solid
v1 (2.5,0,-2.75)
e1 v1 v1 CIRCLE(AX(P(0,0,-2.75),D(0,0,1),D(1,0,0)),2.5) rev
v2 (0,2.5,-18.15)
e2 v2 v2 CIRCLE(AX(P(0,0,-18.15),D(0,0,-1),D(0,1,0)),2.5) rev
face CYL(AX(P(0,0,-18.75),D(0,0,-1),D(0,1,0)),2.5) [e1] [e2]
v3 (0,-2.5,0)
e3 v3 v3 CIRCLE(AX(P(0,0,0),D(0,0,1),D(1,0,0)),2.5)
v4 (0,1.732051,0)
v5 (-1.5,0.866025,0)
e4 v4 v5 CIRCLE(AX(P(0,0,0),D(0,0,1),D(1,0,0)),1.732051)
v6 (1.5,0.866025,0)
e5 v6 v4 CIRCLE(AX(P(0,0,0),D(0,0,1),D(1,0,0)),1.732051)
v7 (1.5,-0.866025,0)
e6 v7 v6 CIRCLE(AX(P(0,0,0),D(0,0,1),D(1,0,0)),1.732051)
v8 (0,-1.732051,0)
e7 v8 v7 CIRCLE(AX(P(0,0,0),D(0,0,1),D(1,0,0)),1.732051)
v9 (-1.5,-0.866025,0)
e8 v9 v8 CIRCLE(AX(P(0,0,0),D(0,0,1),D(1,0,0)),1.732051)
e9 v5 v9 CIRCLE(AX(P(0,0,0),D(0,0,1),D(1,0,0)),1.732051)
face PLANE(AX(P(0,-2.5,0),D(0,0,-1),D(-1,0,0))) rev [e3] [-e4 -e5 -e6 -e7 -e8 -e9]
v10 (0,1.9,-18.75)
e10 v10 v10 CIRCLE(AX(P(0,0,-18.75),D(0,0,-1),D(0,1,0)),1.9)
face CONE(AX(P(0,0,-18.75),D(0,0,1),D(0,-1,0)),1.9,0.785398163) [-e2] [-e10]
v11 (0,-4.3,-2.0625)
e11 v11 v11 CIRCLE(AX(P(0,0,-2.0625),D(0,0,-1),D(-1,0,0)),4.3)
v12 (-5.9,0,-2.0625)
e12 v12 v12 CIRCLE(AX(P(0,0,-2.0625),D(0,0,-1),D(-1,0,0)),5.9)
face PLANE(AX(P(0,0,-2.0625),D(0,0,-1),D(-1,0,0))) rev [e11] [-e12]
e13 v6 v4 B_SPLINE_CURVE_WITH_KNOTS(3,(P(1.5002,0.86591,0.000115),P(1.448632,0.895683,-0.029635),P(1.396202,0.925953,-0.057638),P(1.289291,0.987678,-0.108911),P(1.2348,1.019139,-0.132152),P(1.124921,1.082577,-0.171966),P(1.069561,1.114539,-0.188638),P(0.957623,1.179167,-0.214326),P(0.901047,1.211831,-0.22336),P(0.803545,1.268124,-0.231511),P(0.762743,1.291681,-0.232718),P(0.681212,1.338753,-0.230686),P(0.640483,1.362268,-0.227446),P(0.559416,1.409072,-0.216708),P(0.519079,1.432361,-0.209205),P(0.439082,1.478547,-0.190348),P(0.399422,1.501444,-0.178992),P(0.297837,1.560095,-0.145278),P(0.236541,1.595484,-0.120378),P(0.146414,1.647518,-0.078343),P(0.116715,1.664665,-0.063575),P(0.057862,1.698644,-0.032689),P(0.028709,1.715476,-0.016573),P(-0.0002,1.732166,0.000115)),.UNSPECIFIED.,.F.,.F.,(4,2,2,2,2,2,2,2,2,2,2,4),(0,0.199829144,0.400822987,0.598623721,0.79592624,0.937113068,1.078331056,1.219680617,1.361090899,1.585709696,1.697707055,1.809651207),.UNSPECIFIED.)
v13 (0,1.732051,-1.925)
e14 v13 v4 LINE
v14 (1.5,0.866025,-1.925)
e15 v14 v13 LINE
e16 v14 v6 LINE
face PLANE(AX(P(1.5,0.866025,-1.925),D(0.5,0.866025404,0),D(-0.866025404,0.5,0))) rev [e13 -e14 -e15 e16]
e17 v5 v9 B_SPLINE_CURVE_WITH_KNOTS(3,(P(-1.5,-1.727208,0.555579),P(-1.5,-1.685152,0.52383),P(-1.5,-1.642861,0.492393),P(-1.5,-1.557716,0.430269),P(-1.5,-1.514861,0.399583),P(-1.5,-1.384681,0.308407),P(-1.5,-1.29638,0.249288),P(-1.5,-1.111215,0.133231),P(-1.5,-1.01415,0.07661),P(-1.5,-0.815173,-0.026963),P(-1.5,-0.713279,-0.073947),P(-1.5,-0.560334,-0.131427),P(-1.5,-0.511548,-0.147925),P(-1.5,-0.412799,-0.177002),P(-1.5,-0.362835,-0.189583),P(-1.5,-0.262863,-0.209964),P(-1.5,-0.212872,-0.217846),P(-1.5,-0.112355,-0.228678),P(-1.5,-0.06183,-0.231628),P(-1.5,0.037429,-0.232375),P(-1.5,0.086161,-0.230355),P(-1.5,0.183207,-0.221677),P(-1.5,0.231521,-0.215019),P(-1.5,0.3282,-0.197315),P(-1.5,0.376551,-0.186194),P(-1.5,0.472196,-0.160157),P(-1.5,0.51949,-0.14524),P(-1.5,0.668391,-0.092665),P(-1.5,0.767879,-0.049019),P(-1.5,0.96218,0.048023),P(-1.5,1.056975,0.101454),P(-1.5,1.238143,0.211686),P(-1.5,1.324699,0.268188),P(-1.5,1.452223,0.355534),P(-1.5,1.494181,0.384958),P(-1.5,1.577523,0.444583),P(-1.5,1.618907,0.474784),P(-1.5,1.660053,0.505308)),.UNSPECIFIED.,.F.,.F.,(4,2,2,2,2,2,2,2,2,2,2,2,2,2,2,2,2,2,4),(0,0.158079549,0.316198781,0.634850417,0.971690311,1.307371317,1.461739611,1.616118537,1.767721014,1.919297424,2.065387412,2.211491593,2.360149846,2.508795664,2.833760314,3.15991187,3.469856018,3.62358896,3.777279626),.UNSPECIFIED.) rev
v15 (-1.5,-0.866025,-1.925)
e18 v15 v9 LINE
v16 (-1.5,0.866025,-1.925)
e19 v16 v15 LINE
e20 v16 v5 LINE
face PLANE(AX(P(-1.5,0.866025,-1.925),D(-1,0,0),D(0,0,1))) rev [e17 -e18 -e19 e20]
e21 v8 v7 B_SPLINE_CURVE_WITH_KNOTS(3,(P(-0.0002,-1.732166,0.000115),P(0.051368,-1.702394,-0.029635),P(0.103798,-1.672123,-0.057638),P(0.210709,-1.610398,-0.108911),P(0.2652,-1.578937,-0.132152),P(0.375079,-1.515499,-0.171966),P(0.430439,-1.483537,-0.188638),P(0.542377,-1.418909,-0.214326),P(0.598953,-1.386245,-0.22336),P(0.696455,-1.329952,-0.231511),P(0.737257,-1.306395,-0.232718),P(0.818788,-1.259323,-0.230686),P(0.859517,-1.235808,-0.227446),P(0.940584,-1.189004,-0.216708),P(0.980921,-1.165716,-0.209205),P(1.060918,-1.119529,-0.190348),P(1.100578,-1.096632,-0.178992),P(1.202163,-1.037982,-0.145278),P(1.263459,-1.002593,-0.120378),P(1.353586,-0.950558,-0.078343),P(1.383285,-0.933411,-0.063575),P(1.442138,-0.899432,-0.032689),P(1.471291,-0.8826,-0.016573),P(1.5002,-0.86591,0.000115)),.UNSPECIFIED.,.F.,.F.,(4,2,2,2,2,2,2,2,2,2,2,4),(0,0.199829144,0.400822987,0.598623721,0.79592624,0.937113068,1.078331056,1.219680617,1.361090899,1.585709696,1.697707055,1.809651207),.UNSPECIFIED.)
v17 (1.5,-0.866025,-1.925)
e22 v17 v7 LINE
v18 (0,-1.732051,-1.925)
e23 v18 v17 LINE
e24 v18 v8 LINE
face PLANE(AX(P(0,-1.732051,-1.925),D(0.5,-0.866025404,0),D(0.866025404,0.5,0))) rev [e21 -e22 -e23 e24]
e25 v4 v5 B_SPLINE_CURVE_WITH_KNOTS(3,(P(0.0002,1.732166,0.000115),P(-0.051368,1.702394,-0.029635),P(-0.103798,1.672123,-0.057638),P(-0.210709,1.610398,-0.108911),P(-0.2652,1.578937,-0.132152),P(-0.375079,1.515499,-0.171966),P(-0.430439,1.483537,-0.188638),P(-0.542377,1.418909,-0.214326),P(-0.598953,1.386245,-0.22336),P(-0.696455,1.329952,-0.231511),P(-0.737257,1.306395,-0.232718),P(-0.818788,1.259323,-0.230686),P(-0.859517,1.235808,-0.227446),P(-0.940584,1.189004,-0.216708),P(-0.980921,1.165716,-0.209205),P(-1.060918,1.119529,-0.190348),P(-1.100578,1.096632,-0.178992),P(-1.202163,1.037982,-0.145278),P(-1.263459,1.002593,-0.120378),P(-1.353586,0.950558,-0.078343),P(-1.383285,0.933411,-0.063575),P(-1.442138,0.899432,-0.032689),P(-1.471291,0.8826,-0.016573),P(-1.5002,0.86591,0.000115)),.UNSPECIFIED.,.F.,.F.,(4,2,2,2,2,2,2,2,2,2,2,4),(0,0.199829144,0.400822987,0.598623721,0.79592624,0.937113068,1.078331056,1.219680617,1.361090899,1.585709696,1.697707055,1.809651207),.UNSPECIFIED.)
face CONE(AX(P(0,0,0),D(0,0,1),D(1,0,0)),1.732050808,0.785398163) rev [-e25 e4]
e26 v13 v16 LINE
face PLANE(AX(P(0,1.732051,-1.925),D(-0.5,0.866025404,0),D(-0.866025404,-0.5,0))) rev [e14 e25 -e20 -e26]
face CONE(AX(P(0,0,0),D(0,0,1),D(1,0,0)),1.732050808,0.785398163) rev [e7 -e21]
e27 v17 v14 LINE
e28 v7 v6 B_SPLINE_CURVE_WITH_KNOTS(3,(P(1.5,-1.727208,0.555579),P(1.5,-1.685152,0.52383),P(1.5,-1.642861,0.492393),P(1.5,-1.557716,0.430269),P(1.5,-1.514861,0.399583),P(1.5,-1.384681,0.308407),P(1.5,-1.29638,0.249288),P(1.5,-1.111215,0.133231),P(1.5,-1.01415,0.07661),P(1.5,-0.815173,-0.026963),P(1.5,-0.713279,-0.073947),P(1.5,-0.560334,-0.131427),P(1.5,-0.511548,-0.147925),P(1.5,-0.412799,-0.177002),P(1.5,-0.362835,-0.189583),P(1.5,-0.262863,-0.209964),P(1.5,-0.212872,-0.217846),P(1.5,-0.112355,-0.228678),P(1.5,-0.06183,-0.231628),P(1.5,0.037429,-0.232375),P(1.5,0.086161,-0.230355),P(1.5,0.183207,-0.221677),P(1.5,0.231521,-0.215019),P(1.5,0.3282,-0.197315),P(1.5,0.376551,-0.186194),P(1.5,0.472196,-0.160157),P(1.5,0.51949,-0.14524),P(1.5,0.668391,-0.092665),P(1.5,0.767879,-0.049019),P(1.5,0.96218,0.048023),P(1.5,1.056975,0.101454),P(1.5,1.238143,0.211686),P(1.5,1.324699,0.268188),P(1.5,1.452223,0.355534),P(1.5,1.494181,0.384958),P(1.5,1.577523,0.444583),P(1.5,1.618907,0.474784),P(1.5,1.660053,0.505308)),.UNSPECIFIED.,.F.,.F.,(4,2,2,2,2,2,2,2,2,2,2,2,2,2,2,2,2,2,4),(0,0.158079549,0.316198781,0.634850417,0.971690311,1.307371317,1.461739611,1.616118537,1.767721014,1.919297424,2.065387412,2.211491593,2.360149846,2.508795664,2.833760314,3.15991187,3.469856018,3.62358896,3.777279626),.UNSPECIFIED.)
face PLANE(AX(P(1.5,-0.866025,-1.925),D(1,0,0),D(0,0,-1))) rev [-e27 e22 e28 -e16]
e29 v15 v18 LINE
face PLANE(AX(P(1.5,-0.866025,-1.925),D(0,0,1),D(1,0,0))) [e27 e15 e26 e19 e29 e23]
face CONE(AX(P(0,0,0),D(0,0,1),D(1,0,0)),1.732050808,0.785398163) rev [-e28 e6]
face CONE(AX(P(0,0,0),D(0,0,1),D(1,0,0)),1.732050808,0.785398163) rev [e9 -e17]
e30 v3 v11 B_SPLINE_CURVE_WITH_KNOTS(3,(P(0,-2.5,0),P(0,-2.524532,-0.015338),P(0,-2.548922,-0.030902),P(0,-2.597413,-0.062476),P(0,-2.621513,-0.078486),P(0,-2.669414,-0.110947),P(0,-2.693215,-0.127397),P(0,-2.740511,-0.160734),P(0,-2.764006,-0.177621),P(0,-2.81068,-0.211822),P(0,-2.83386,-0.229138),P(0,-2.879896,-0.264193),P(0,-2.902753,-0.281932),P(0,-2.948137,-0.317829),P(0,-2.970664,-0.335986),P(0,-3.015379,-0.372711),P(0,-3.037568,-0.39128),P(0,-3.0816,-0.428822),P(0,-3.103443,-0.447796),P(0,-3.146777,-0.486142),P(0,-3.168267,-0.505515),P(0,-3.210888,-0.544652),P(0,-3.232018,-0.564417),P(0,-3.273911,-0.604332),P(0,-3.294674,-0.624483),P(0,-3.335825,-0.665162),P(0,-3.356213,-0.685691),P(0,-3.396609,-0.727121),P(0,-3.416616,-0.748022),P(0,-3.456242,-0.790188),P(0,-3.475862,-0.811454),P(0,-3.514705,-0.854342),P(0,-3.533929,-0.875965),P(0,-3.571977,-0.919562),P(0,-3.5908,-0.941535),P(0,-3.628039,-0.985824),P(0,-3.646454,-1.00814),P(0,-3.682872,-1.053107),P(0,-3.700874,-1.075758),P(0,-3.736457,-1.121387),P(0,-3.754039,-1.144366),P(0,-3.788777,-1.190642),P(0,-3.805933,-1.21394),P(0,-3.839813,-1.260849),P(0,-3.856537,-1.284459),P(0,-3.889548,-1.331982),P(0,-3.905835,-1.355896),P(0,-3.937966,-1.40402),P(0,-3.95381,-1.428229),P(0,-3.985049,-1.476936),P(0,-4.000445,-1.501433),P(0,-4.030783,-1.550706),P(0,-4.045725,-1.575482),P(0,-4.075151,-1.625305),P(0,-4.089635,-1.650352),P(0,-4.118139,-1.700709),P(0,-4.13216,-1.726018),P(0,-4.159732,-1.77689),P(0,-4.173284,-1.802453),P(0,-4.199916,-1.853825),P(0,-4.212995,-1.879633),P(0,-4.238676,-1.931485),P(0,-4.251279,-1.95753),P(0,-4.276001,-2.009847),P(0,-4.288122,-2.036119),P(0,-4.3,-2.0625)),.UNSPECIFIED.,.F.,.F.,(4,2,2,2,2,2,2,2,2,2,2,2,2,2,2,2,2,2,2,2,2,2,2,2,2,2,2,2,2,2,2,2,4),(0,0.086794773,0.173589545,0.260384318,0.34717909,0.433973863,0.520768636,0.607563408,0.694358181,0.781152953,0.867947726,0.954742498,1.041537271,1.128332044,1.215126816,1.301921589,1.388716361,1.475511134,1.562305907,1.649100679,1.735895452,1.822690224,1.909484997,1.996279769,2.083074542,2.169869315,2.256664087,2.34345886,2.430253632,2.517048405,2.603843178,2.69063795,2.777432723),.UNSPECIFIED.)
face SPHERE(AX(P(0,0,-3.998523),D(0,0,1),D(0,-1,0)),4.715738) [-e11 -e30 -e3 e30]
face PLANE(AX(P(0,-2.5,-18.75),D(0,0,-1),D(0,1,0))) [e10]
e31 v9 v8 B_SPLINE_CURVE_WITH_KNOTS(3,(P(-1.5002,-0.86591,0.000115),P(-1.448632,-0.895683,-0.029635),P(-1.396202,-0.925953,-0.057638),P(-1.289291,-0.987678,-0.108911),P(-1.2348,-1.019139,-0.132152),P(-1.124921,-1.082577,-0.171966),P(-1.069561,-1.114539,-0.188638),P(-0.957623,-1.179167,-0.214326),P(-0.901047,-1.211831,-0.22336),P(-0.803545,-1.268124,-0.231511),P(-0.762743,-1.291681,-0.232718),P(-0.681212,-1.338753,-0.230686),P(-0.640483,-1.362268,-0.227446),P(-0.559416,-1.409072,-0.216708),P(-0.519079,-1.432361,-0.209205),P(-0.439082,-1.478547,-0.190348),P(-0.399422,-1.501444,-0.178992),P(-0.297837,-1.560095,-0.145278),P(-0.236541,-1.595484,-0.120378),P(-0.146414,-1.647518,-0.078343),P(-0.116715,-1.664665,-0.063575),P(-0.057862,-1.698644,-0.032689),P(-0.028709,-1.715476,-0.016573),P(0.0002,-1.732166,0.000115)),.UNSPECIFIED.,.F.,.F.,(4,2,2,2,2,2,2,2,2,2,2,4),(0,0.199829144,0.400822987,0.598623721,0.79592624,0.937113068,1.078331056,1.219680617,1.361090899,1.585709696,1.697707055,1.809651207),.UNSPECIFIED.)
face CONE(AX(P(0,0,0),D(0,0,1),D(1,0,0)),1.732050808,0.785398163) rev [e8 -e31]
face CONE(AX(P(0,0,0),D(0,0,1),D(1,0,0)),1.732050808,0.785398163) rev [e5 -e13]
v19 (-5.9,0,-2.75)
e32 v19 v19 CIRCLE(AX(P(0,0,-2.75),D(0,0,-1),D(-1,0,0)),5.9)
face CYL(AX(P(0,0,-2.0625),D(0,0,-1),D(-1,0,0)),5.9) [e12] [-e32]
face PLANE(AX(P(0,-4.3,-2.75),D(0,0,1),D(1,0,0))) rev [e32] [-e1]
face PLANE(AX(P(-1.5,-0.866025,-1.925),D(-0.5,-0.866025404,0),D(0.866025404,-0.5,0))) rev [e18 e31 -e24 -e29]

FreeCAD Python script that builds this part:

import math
import FreeCAD as App
import Part
import Sketcher
from FreeCAD import Vector
Q = App.Units.Quantity


def edges_at(feature, points):
    """Names of the edges that pass closest to the given points."""
    edges = feature.Shape.Edges
    near = lambda p: min(range(len(edges)), key=lambda i: edges[i].distToShape(Part.Vertex(*p))[0])
    return sorted({f"Edge{near(p) + 1}" for p in points})

doc = App.newDocument("Part")
body = doc.addObject("PartDesign::Body", "Body")

sketch1 = body.newObject("Sketcher::SketchObject", "Sketch")
sketch1.AttachmentSupport = (doc.getObject("YZ_Plane"), [""])
sketch1.MapMode = "FlatFace"
sketch1.addGeometry(Part.LineSegment(Vector(2.5, -2.8, 0), Vector(0, -2.8, 0)), False)
sketch1.addGeometry(Part.LineSegment(Vector(0, -2.8, 0), Vector(0, -18.8, 0)), False)
sketch1.addGeometry(Part.LineSegment(Vector(0, -18.8, 0), Vector(2.5, -18.8, 0)), False)
sketch1.addGeometry(Part.LineSegment(Vector(2.5, -18.8, 0), Vector(2.5, -2.8, 0)), False)
sketch1.addConstraint(Sketcher.Constraint("Coincident", 0, 2, 1, 1))
sketch1.addConstraint(Sketcher.Constraint("Coincident", 1, 2, 2, 1))
sketch1.addConstraint(Sketcher.Constraint("Coincident", 2, 2, 3, 1))
sketch1.addConstraint(Sketcher.Constraint("Coincident", 3, 2, 0, 1))
sketch1.addConstraint(Sketcher.Constraint("Horizontal", 0))
sketch1.addConstraint(Sketcher.Constraint("Vertical", 1))
sketch1.addConstraint(Sketcher.Constraint("Horizontal", 2))
sketch1.addConstraint(Sketcher.Constraint("Vertical", 3))
sketch1.addConstraint(Sketcher.Constraint("PointOnObject", 0, 2, -2))
sketch1.addConstraint(Sketcher.Constraint("DistanceY", 1, 2, 1, 1, Q("16 mm")))
sketch1.addConstraint(Sketcher.Constraint("DistanceX", 0, 2, 0, 1, Q("2.5 mm")))
sketch1.addConstraint(Sketcher.Constraint("DistanceY", 0, 2, -1, 1, Q("2.75 mm")))
revolution = body.newObject("PartDesign::Revolution", "Revolution")
revolution.Profile = sketch1
revolution.ReferenceAxis = (sketch1, ["V_Axis"])
revolution.Angle = 360
doc.recompute()

chamfer = body.newObject("PartDesign::Chamfer", "Chamfer")
chamfer.Base = (revolution, edges_at(revolution, [(0, -2.5, -18.75)]))
chamfer.Size = 0.6

sketch2 = body.newObject("Sketcher::SketchObject", "Sketch001")
sketch2.AttachmentSupport = (doc.getObject("YZ_Plane"), [""])
sketch2.MapMode = "FlatFace"
sketch2.addGeometry(Part.LineSegment(Vector(4.3, -2.8, 0), Vector(4.3, -2.1, 0)), False)
sketch2.addGeometry(Part.ArcOfCircle(Part.Circle(Vector(0, -4, 0), Vector(0, 0, 1), 4.7), math.radians(24), math.radians(58)), False)
sketch2.addGeometry(Part.LineSegment(Vector(2.5, 0, 0), Vector(0, 0, 0)), False)
sketch2.addGeometry(Part.LineSegment(Vector(0, 0, 0), Vector(0, -2.8, 0)), False)
sketch2.addGeometry(Part.LineSegment(Vector(0, -2.8, 0), Vector(4.3, -2.8, 0)), False)
sketch2.addConstraint(Sketcher.Constraint("Coincident", 0, 2, 1, 1))
sketch2.addConstraint(Sketcher.Constraint("Coincident", 1, 2, 2, 1))
sketch2.addConstraint(Sketcher.Constraint("Coincident", 2, 2, 3, 1))
sketch2.addConstraint(Sketcher.Constraint("Coincident", 3, 2, 4, 1))
sketch2.addConstraint(Sketcher.Constraint("Coincident", 4, 2, 0, 1))
sketch2.addConstraint(Sketcher.Constraint("Vertical", 0))
sketch2.addConstraint(Sketcher.Constraint("Horizontal", 2))
sketch2.addConstraint(Sketcher.Constraint("Vertical", 3))
sketch2.addConstraint(Sketcher.Constraint("Horizontal", 4))
sketch2.addConstraint(Sketcher.Constraint("Coincident", 2, 2, -1, 1))
sketch2.addConstraint(Sketcher.Constraint("PointOnObject", 1, 3, -2))
sketch2.addConstraint(Sketcher.Constraint("DistanceX", 2, 2, 2, 1, Q("2.5 mm")))
sketch2.addConstraint(Sketcher.Constraint("DistanceX", 4, 1, 4, 2, Q("4.3 mm")))
sketch2.addConstraint(Sketcher.Constraint("DistanceY", 3, 2, 3, 1, Q("2.75 mm")))
sketch2.addConstraint(Sketcher.Constraint("DistanceY", 0, 1, 0, 2, Q("0.6875 mm")))
revolution2 = body.newObject("PartDesign::Revolution", "Revolution001")
revolution2.Profile = sketch2
revolution2.ReferenceAxis = (sketch2, ["V_Axis"])
revolution2.Angle = 360

sketch3 = body.newObject("Sketcher::SketchObject", "Sketch002")
sketch3.AttachmentSupport = (doc.getObject("XY_Plane"), [""])
sketch3.MapMode = "FlatFace"
sketch3.AttachmentOffset = App.Placement(Vector(0, 0, -2.75), App.Rotation())
sketch3.addGeometry(Part.Circle(Vector(0, 0, 0), Vector(0, 0, 1), 6), False)
sketch3.addConstraint(Sketcher.Constraint("Coincident", 0, 3, -1, 1))
sketch3.addConstraint(Sketcher.Constraint("Diameter", 0, Q("11.8 mm")))
pad1 = body.newObject("PartDesign::Pad", "Pad")
pad1.Profile = sketch3
pad1.Length = 0.6875

sketch4 = body.newObject("Sketcher::SketchObject", "Sketch003")
sketch4.AttachmentSupport = (doc.getObject("XY_Plane"), [""])
sketch4.MapMode = "FlatFace"
sketch4.addGeometry(Part.LineSegment(Vector(1.5, -0.9, 0), Vector(1.5, 0.9, 0)), False)
sketch4.addGeometry(Part.LineSegment(Vector(1.5, 0.9, 0), Vector(0, 1.7, 0)), False)
sketch4.addGeometry(Part.LineSegment(Vector(0, 1.7, 0), Vector(-1.5, 0.9, 0)), False)
sketch4.addGeometry(Part.LineSegment(Vector(-1.5, 0.9, 0), Vector(-1.5, -0.9, 0)), False)
sketch4.addGeometry(Part.LineSegment(Vector(-1.5, -0.9, 0), Vector(0, -1.7, 0)), False)
sketch4.addGeometry(Part.LineSegment(Vector(0, -1.7, 0), Vector(1.5, -0.9, 0)), False)
sketch4.addConstraint(Sketcher.Constraint("Coincident", 0, 2, 1, 1))
sketch4.addConstraint(Sketcher.Constraint("Coincident", 1, 2, 2, 1))
sketch4.addConstraint(Sketcher.Constraint("Coincident", 2, 2, 3, 1))
sketch4.addConstraint(Sketcher.Constraint("Coincident", 3, 2, 4, 1))
sketch4.addConstraint(Sketcher.Constraint("Coincident", 4, 2, 5, 1))
sketch4.addConstraint(Sketcher.Constraint("Coincident", 5, 2, 0, 1))
sketch4.addConstraint(Sketcher.Constraint("Vertical", 0))
sketch4.addConstraint(Sketcher.Constraint("Vertical", 3))
sketch4.addConstraint(Sketcher.Constraint("Symmetric", 0, 2, 3, 2, -1, 1))
sketch4.addConstraint(Sketcher.Constraint("Symmetric", 1, 2, 4, 2, -1, 1))
sketch4.addConstraint(Sketcher.Constraint("PointOnObject", 1, 2, -2))
sketch4.addConstraint(Sketcher.Constraint("Parallel", 2, 5))
sketch4.addConstraint(Sketcher.Constraint("Horizontal", 0, 2, 2, 2))
sketch4.addConstraint(Sketcher.Constraint("Angle", 1, Q("150 deg")))
sketch4.addConstraint(Sketcher.Constraint("DistanceX", 2, 2, 0, 2, Q("3 mm")))
sketch4.addConstraint(Sketcher.Constraint("DistanceY", 0, 1, 0, 2, Q("1.732051 mm")))
pocket1 = body.newObject("PartDesign::Pocket", "Pocket")
pocket1.Profile = sketch4
pocket1.Length = 1.925

sketch5 = body.newObject("Sketcher::SketchObject", "Sketch004")
sketch5.AttachmentSupport = (doc.getObject("YZ_Plane"), [""])
sketch5.MapMode = "FlatFace"
sketch5.addGeometry(Part.LineSegment(Vector(0, 0, 0), Vector(-1.7, 0, 0)), False)
sketch5.addGeometry(Part.LineSegment(Vector(-1.7, 0, 0), Vector(0, -1.7, 0)), False)
sketch5.addGeometry(Part.LineSegment(Vector(0, -1.7, 0), Vector(0, 0, 0)), False)
sketch5.addConstraint(Sketcher.Constraint("Coincident", 0, 2, 1, 1))
sketch5.addConstraint(Sketcher.Constraint("Coincident", 1, 2, 2, 1))
sketch5.addConstraint(Sketcher.Constraint("Coincident", 2, 2, 0, 1))
sketch5.addConstraint(Sketcher.Constraint("Horizontal", 0))
sketch5.addConstraint(Sketcher.Constraint("Vertical", 2))
sketch5.addConstraint(Sketcher.Constraint("Coincident", 2, 2, -1, 1))
sketch5.addConstraint(Sketcher.Constraint("Equal", 0, 2))
sketch5.addConstraint(Sketcher.Constraint("DistanceX", 0, 2, 0, 1, Q("1.732051 mm")))
groove = body.newObject("PartDesign::Groove", "Groove")
groove.Profile = sketch5
groove.ReferenceAxis = (sketch5, ["V_Axis"])
groove.Angle = 360

doc.recompute()
